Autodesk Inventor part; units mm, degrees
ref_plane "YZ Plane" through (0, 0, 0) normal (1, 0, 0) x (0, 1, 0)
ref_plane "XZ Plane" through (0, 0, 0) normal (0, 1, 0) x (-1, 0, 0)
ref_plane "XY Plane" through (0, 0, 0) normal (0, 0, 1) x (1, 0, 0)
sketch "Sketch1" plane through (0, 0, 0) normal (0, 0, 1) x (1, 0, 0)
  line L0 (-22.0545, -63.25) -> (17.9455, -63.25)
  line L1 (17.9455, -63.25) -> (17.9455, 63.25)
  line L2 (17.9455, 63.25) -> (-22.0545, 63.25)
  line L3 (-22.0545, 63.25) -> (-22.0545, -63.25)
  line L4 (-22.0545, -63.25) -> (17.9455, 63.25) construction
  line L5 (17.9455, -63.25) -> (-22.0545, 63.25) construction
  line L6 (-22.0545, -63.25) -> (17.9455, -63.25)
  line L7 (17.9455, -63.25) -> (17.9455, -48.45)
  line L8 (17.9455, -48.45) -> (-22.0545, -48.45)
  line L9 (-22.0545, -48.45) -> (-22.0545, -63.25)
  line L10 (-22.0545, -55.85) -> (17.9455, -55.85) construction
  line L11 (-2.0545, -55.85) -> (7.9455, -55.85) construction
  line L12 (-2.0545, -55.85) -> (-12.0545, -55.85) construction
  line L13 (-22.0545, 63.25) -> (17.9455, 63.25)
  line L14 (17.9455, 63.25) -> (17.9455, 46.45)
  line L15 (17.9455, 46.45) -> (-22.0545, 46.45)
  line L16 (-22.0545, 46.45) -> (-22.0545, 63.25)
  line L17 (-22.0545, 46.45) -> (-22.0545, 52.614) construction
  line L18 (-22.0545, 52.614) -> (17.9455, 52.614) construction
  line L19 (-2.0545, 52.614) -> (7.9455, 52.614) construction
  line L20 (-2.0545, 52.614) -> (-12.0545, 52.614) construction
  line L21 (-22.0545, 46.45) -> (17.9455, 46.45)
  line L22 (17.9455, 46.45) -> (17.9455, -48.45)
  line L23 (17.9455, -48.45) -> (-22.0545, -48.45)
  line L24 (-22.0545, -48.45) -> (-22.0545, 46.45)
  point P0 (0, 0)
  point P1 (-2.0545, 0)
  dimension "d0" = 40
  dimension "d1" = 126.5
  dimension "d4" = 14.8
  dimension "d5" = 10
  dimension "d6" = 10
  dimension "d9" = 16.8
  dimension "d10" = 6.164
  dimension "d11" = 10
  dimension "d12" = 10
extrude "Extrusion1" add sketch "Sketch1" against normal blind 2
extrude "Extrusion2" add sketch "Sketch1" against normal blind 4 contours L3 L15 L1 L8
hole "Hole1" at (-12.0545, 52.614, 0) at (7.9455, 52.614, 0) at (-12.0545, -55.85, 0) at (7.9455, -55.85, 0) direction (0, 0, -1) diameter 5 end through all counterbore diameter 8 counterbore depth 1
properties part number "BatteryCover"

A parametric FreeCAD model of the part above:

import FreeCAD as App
import Part
import Sketcher
from FreeCAD import Vector
Q = App.Units.Quantity

doc = App.newDocument("Part")
body = doc.addObject("PartDesign::Body", "Body")

# Sketch on XY plane
sketch1 = body.newObject("Sketcher::SketchObject", "Sketch")
sketch1.AttachmentSupport = (doc.getObject("XY_Plane"), [""])
sketch1.MapMode = "FlatFace"
sketch1.addGeometry([
    Part.LineSegment(Vector(-22.0545, -63.25, 0), Vector(17.9455, -63.25, 0)),
    Part.LineSegment(Vector(17.9455, -63.25, 0), Vector(17.9455, 63.25, 0)),
    Part.LineSegment(Vector(17.9455, 63.25, 0), Vector(-22.0545, 63.25, 0)),
    Part.LineSegment(Vector(-22.0545, 63.25, 0), Vector(-22.0545, -63.25, 0)),
], False)
sketch1.addConstraint([
    Sketcher.Constraint("Coincident", 0, 2, 1, 1),
    Sketcher.Constraint("Coincident", 1, 2, 2, 1),
    Sketcher.Constraint("Coincident", 2, 2, 3, 1),
    Sketcher.Constraint("Coincident", 3, 2, 0, 1),
    Sketcher.Constraint("Horizontal", 0),
    Sketcher.Constraint("Vertical", 1),
    Sketcher.Constraint("Horizontal", 2),
    Sketcher.Constraint("Vertical", 3),
    Sketcher.Constraint("DistanceX", 0, 1, 0, 2, Q("40 mm")),
    Sketcher.Constraint("DistanceY", 1, 1, 1, 2, Q("126.5 mm")),
    Sketcher.Constraint("DistanceY", 0, 2, -1, 1, Q("63.25 mm")),
    Sketcher.Constraint("DistanceX", -1, 1, 0, 2, Q("17.9455 mm")),
])
pad1 = body.newObject("PartDesign::Pad", "Pad")
pad1.Profile = sketch1
pad1.Length = 2
pad1.Reversed = True

# Sketch on XY plane
sketch2 = body.newObject("Sketcher::SketchObject", "Sketch001")
sketch2.AttachmentSupport = (doc.getObject("XY_Plane"), [""])
sketch2.MapMode = "FlatFace"
sketch2.addGeometry([
    Part.LineSegment(Vector(-22.0545, 46.45, 0), Vector(-22.0545, -48.45, 0)),
    Part.LineSegment(Vector(-22.0545, -48.45, 0), Vector(17.9455, -48.45, 0)),
    Part.LineSegment(Vector(17.9455, -48.45, 0), Vector(17.9455, 46.45, 0)),
    Part.LineSegment(Vector(17.9455, 46.45, 0), Vector(-22.0545, 46.45, 0)),
], False)
sketch2.addConstraint([
    Sketcher.Constraint("Coincident", 0, 2, 1, 1),
    Sketcher.Constraint("Coincident", 1, 2, 2, 1),
    Sketcher.Constraint("Coincident", 2, 2, 3, 1),
    Sketcher.Constraint("Coincident", 3, 2, 0, 1),
    Sketcher.Constraint("Vertical", 0),
    Sketcher.Constraint("Horizontal", 1),
    Sketcher.Constraint("Vertical", 2),
    Sketcher.Constraint("Horizontal", 3),
    Sketcher.Constraint("DistanceX", 1, 1, 1, 2, Q("40 mm")),
    Sketcher.Constraint("DistanceY", 0, 2, 0, 1, Q("94.9 mm")),
    Sketcher.Constraint("DistanceY", 0, 2, -1, 1, Q("48.45 mm")),
    Sketcher.Constraint("DistanceX", 0, 2, -1, 1, Q("22.0545 mm")),
])
pad2 = body.newObject("PartDesign::Pad", "Pad001")
pad2.Profile = sketch2
pad2.Length = 4
pad2.Reversed = True

# Sketch on XY plane
sketch3 = body.newObject("Sketcher::SketchObject", "Sketch002")
sketch3.AttachmentSupport = (doc.getObject("XY_Plane"), [""])
sketch3.MapMode = "FlatFace"
sketch3.addGeometry([
    Part.Circle(Vector(-12.0545, 52.614, 0), Vector(0, 0, 1), 2.5),
    Part.Circle(Vector(7.9455, 52.614, 0), Vector(0, 0, 1), 2.5),
    Part.Circle(Vector(-12.0545, -55.85, 0), Vector(0, 0, 1), 2.5),
    Part.Circle(Vector(7.9455, -55.85, 0), Vector(0, 0, 1), 2.5),
], False)
sketch3.addConstraint([
    Sketcher.Constraint("Equal", 0, 1),
    Sketcher.Constraint("Equal", 1, 2),
    Sketcher.Constraint("Equal", 2, 3),
    Sketcher.Constraint("Horizontal", 0, 3, 1, 3),
    Sketcher.Constraint("Horizontal", 2, 3, 3, 3),
    Sketcher.Constraint("Vertical", 0, 3, 2, 3),
    Sketcher.Constraint("Vertical", 1, 3, 3, 3),
    Sketcher.Constraint("Diameter", 0, Q("5 mm")),
    Sketcher.Constraint("DistanceX", 0, 3, 1, 3, Q("20 mm")),
    Sketcher.Constraint("DistanceY", 2, 3, -1, 1, Q("55.85 mm")),
    Sketcher.Constraint("DistanceY", -1, 1, 0, 3, Q("52.614 mm")),
    Sketcher.Constraint("DistanceX", 0, 3, -1, 1, Q("12.0545 mm")),
])
doc.recompute()
hole = body.newObject("PartDesign::Hole", "Hole")
hole.Profile = sketch3
hole.ThreadType = "None"
hole.Diameter = 5
hole.DepthType = "ThroughAll"
hole.HoleCutType = "Counterbore"
hole.HoleCutDiameter = 8
hole.HoleCutDepth = 1

doc.recompute()
